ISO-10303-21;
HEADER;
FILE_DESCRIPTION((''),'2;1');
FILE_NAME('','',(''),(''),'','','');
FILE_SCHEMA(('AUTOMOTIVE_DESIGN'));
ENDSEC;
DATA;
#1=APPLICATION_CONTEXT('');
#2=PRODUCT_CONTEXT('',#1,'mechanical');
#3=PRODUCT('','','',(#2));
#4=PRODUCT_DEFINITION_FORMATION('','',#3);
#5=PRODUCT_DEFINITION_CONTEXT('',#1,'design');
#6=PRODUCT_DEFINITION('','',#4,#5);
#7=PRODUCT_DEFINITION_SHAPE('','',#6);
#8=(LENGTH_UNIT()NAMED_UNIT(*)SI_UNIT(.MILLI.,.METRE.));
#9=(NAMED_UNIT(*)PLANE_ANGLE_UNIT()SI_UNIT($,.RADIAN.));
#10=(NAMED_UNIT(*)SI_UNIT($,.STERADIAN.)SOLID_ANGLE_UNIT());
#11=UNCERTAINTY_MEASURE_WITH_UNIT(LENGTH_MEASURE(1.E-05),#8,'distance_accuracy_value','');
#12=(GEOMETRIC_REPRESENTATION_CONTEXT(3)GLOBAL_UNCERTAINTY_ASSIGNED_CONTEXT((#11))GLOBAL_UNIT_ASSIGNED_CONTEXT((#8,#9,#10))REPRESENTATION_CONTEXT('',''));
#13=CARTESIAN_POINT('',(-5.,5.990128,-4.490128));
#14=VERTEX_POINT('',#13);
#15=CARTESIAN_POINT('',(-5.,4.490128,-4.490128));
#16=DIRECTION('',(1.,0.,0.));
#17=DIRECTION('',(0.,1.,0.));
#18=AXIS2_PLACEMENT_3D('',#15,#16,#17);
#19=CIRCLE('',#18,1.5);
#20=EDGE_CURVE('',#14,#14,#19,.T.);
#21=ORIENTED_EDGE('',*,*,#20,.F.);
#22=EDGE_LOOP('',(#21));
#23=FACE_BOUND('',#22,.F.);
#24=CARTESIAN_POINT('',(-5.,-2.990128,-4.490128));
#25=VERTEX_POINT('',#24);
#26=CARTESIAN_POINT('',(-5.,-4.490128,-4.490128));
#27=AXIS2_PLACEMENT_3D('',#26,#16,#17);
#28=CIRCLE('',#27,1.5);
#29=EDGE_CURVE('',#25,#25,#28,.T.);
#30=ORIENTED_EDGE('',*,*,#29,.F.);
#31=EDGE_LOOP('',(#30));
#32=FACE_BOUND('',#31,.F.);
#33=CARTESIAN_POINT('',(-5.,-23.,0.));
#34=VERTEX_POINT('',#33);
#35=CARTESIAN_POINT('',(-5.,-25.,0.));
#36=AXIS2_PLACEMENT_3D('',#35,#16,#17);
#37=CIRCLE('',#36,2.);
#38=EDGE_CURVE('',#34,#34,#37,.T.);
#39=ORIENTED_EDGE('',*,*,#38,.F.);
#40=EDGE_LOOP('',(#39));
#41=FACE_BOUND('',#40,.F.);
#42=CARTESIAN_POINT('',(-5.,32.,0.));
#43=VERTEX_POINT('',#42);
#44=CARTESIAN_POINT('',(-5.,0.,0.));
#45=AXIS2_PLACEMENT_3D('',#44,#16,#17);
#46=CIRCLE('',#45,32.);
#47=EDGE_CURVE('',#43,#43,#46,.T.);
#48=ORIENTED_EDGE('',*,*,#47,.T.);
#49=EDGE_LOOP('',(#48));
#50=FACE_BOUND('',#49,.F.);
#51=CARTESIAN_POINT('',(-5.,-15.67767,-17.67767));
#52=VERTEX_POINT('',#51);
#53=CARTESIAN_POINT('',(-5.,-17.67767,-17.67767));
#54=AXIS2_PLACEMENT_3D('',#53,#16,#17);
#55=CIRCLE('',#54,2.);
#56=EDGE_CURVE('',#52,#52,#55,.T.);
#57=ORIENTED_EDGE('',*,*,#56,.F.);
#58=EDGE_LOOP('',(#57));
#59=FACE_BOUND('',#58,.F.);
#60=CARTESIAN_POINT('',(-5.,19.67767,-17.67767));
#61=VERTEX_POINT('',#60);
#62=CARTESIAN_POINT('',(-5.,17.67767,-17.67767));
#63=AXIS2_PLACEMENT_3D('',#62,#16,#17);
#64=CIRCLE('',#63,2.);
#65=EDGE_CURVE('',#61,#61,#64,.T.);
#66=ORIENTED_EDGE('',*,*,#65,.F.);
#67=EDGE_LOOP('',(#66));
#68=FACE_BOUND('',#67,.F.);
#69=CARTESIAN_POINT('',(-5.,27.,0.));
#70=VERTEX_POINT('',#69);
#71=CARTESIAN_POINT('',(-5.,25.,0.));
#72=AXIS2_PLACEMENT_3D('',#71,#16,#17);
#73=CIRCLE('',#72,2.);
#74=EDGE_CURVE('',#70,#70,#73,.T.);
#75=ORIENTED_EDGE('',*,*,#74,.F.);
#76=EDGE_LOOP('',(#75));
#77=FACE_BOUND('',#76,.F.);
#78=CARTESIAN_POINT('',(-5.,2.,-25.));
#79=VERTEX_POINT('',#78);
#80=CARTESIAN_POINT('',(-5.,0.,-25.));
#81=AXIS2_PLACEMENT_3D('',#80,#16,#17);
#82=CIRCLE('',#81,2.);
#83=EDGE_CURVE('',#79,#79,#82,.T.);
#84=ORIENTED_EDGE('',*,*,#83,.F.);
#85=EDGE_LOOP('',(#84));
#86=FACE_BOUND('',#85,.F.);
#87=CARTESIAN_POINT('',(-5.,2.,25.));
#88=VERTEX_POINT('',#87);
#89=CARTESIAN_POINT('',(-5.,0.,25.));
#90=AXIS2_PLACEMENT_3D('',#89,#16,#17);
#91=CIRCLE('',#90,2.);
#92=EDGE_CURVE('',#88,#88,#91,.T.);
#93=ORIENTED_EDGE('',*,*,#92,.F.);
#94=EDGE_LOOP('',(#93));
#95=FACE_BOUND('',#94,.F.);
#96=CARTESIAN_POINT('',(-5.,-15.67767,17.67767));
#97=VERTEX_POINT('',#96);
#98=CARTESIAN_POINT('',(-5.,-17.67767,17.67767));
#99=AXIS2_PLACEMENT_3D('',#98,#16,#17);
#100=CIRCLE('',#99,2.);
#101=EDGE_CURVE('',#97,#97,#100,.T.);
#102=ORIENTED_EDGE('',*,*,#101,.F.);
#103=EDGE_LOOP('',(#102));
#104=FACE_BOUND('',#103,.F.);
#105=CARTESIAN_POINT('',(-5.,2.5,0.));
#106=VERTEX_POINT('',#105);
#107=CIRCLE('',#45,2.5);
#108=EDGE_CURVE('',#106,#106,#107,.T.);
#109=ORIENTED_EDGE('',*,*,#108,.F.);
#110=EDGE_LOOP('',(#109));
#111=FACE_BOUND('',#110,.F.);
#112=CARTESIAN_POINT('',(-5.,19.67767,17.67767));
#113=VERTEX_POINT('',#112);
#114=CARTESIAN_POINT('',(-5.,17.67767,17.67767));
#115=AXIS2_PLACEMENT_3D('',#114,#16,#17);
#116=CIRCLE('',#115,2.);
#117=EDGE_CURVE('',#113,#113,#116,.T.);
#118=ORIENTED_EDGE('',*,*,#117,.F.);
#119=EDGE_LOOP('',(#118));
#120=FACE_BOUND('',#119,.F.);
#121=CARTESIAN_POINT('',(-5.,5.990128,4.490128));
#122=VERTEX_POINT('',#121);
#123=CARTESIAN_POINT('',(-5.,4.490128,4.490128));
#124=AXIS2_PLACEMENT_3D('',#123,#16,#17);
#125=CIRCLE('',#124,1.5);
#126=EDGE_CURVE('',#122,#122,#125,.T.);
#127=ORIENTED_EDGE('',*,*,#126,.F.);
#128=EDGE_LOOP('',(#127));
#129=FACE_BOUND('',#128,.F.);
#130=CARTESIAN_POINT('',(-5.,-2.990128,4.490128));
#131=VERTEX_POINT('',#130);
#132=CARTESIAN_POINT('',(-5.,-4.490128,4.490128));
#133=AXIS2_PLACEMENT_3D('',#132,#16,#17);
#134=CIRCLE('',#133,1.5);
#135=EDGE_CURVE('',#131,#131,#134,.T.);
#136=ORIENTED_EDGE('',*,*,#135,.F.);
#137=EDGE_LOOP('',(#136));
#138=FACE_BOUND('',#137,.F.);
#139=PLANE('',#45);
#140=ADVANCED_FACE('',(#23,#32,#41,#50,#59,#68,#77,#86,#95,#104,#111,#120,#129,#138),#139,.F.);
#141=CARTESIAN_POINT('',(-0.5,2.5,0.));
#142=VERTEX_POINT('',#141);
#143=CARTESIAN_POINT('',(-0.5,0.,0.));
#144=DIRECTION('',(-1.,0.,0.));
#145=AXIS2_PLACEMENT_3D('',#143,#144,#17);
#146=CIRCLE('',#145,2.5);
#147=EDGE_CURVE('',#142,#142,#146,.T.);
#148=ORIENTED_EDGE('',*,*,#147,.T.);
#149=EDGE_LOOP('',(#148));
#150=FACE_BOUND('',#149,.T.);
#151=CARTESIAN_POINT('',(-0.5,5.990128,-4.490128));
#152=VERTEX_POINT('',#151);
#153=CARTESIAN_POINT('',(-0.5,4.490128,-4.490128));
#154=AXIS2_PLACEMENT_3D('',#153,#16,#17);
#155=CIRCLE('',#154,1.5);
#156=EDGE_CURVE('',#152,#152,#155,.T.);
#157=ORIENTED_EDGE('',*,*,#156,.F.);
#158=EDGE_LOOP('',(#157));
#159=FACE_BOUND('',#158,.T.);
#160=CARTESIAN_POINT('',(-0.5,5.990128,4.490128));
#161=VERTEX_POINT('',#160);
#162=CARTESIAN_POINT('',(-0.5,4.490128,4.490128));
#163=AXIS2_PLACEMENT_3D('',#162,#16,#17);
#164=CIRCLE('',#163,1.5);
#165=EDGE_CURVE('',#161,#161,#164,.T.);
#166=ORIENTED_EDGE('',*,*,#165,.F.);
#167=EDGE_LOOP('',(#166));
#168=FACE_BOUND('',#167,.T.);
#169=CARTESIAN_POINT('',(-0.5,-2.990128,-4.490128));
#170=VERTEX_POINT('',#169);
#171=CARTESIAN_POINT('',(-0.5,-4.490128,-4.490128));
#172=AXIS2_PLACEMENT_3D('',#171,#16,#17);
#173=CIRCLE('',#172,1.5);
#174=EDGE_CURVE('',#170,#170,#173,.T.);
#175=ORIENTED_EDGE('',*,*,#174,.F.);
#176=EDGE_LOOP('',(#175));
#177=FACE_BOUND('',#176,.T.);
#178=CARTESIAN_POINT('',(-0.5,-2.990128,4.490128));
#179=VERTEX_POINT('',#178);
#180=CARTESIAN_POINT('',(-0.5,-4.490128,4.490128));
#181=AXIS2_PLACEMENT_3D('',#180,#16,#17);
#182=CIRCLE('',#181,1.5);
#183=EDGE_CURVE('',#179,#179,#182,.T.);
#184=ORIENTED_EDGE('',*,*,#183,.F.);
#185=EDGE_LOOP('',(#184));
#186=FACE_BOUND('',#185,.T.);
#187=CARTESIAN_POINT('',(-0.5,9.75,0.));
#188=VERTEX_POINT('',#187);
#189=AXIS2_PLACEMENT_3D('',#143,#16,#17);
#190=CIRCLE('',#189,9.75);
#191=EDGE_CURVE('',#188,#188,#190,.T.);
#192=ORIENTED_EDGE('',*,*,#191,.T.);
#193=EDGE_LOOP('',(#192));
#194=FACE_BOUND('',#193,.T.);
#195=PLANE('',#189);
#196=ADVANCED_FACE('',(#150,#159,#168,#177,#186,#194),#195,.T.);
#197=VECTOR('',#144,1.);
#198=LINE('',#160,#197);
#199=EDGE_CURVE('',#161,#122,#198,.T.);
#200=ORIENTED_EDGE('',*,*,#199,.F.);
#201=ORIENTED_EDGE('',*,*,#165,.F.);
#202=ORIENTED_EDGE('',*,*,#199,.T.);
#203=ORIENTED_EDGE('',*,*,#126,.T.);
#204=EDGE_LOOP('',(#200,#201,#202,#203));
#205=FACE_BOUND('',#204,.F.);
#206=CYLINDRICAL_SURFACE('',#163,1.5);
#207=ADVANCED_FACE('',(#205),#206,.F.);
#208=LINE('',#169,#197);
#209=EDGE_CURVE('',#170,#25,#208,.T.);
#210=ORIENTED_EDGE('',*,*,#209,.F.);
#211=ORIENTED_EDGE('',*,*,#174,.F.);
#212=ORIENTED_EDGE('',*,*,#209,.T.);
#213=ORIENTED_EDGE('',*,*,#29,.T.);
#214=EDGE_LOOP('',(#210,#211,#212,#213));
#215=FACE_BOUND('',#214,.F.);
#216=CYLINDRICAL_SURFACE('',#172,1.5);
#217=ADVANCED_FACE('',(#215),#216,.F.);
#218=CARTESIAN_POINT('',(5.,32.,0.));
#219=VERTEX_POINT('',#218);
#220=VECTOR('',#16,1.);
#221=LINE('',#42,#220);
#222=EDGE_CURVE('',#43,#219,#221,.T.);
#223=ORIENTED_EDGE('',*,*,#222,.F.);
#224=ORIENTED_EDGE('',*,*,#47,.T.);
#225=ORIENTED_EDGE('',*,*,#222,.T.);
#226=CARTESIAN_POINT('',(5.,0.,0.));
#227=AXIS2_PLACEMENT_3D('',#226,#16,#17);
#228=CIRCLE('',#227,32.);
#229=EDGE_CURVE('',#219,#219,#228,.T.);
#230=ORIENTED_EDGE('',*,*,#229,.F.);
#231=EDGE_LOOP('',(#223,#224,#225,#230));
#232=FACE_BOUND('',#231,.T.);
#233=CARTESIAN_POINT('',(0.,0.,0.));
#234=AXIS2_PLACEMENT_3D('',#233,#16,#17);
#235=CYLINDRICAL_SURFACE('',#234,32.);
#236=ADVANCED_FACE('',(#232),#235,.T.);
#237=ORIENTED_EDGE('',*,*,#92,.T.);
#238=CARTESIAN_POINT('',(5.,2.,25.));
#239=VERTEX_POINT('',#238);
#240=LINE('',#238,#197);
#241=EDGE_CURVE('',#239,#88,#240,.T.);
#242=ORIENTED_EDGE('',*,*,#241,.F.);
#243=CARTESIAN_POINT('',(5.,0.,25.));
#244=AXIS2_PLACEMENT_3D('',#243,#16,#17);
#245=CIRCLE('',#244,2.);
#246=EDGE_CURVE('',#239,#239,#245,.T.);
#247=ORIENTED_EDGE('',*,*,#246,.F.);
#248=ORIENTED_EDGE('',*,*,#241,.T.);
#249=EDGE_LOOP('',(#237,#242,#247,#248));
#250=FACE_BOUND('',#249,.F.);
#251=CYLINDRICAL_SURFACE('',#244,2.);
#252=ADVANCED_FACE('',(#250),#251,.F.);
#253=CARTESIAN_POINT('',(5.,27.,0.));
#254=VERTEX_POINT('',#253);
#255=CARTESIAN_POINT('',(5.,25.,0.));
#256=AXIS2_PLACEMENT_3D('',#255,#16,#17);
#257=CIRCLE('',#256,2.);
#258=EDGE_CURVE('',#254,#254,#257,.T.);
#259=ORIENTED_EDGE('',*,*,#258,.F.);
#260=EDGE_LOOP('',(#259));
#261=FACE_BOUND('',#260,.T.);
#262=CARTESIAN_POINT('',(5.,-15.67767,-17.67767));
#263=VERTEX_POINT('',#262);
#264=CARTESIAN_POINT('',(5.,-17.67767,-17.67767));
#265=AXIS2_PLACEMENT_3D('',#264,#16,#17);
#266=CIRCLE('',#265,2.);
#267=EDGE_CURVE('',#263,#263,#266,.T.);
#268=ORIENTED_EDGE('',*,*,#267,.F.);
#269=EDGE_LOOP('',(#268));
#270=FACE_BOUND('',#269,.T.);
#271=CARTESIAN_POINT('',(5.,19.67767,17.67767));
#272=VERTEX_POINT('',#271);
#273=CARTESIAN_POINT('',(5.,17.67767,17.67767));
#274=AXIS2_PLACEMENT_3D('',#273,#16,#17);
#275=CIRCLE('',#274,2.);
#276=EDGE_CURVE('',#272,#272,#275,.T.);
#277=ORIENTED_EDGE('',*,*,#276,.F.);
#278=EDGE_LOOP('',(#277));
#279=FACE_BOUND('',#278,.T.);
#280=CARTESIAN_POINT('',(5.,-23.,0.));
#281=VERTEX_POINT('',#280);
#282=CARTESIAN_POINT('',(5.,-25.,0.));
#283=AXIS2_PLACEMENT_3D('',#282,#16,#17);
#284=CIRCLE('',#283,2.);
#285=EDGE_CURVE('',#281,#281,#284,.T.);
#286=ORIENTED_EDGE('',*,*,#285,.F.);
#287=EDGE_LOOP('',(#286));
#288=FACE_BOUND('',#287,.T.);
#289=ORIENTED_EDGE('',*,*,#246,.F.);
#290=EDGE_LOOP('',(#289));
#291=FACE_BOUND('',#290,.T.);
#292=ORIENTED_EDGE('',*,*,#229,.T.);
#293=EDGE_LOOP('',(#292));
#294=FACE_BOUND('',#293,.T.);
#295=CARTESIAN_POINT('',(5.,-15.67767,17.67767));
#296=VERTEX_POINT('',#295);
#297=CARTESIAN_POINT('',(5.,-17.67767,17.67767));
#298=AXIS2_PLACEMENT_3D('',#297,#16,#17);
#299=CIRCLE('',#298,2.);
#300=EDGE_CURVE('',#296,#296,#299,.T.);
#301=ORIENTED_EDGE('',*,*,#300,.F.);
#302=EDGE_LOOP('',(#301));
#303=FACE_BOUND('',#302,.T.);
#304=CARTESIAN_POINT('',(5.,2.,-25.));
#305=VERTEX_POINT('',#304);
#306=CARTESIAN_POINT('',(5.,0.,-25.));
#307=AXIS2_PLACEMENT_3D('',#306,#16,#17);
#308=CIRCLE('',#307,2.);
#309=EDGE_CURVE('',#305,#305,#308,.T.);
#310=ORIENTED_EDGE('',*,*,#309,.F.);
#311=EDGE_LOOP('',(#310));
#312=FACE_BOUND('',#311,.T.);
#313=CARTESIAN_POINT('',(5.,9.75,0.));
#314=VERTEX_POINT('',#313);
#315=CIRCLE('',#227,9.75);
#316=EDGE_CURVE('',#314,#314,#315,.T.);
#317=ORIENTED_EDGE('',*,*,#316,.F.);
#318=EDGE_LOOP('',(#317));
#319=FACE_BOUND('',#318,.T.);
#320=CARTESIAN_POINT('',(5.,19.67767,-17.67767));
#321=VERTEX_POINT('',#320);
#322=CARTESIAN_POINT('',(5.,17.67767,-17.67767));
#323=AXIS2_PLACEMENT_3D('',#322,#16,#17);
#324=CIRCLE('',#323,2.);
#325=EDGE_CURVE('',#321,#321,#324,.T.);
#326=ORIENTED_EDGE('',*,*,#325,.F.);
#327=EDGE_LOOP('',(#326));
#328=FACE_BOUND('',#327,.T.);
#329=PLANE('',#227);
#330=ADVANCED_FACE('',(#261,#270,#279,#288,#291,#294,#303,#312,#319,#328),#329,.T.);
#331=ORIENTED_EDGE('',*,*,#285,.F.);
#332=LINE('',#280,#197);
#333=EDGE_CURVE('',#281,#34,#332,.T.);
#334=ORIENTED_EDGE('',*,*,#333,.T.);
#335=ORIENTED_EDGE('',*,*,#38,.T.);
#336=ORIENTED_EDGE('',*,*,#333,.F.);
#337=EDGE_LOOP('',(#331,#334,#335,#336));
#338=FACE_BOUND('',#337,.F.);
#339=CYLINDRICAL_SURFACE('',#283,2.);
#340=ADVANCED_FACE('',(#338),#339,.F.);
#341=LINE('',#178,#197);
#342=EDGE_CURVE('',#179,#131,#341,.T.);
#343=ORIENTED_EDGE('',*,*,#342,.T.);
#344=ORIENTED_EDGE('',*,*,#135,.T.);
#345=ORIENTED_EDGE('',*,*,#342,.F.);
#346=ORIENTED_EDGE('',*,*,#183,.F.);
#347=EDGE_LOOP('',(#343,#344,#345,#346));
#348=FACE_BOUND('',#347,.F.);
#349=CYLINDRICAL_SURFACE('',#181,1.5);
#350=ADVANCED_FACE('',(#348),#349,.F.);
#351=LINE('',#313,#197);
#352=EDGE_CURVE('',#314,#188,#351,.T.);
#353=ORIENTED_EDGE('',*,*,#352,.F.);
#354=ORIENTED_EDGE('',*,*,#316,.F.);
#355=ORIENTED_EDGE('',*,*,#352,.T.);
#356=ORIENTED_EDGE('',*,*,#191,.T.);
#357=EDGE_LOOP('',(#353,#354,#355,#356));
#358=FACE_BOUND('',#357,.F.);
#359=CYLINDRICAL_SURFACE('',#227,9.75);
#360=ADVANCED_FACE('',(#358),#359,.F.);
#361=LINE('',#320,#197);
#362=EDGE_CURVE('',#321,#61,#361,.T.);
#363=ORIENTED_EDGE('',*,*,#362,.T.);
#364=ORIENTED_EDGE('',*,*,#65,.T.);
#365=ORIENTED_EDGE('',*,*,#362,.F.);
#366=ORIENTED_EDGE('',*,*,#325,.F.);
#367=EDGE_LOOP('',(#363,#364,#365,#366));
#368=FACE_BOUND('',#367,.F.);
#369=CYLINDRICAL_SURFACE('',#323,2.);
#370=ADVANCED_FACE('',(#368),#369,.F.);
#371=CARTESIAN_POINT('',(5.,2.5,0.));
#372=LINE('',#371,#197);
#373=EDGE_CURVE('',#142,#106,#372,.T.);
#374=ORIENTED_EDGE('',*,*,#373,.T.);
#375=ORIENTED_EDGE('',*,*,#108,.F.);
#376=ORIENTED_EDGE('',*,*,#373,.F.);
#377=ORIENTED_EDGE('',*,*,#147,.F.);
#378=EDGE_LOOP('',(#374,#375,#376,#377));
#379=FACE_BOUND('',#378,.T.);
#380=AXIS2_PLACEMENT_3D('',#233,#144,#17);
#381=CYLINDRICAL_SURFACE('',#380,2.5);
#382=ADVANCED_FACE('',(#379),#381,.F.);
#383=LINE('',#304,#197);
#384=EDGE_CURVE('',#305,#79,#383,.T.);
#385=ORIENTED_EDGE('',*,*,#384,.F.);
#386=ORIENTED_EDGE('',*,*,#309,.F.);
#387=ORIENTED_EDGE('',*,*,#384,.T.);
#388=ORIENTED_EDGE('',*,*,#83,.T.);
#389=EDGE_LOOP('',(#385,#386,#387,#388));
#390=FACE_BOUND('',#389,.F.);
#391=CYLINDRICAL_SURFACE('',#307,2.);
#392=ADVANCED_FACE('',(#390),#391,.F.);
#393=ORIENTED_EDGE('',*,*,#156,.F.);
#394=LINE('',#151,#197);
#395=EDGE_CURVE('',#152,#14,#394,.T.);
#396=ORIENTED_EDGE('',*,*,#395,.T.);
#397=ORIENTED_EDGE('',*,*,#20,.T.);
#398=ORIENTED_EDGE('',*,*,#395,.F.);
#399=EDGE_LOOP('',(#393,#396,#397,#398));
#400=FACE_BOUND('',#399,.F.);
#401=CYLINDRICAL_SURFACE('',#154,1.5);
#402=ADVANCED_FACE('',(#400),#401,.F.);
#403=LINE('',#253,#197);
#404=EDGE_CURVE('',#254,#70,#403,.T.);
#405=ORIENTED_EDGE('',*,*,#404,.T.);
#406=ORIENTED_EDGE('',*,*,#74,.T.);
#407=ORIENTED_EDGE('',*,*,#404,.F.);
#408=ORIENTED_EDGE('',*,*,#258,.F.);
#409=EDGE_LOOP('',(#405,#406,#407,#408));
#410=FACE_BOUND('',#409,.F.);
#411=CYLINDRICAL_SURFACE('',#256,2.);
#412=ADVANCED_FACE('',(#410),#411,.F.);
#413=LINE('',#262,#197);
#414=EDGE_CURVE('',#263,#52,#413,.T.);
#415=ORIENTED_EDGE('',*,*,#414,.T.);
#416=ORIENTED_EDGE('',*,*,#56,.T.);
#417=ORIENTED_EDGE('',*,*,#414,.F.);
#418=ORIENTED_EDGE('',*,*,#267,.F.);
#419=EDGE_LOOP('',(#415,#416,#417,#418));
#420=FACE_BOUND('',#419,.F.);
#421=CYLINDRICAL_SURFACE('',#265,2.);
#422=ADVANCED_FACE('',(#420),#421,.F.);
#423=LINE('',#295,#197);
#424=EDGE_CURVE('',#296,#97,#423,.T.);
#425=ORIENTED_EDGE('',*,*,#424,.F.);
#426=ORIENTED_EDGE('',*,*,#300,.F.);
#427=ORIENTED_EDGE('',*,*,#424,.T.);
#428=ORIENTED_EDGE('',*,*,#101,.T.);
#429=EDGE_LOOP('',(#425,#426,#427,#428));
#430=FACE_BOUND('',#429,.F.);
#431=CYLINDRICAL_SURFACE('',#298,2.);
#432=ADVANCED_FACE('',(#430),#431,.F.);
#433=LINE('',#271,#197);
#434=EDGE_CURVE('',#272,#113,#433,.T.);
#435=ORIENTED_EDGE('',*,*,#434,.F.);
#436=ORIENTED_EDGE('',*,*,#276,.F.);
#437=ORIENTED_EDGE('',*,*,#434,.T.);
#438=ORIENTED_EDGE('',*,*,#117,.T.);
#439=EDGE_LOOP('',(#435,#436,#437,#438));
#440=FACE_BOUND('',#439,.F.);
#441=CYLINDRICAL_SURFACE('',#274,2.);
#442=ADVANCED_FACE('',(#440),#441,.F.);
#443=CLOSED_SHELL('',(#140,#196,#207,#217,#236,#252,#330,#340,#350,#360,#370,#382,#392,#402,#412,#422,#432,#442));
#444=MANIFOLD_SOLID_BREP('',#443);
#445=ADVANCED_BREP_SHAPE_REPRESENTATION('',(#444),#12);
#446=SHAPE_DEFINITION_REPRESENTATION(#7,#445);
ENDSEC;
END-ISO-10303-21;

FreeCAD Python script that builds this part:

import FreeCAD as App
import Part
import Sketcher

V = App.Vector

doc = App.newDocument("Part")
body = doc.addObject("PartDesign::Body", "Body")

# Sketch on YZ plane
sketch1 = doc.addObject("Sketcher::SketchObject", "Sketch")
body.addObject(sketch1)
sketch1.AttachmentSupport = (doc.YZ_Plane, [""])
sketch1.MapMode = "FlatFace"
sketch1.addGeometry([
    Part.Circle(V(0, 0, 0), V(0, 0, 1), 32),
    Part.Circle(V(0, 0, 0), V(0, 0, 1), 2.5),
], False)
sketch1.addConstraint([
    Sketcher.Constraint("Coincident", 0, 3, -1, 1),
    Sketcher.Constraint("Coincident", 1, 3, -1, 1),
    Sketcher.Constraint("Diameter", 0, 64.0),
    Sketcher.Constraint("Diameter", 1, 5.0),
])
pad1 = doc.addObject("PartDesign::Pad", "Pad")
body.addObject(pad1)
pad1.Profile = sketch1
pad1.Length = 10
pad1.Midplane = True

# Sketch on YZ plane
sketch2 = doc.addObject("Sketcher::SketchObject", "Sketch001")
body.addObject(sketch2)
sketch2.AttachmentSupport = (doc.YZ_Plane, [""])
sketch2.MapMode = "FlatFace"
sketch2.AttachmentOffset = App.Placement(V(0, 0, 5), App.Rotation())
sketch2.addGeometry(Part.Circle(V(0, 0, 0), V(0, 0, 1), 10), False)
sketch2.addConstraint([
    Sketcher.Constraint("Coincident", 0, 3, -1, 1),
    Sketcher.Constraint("Diameter", 0, 19.5),
])
pocket1 = doc.addObject("PartDesign::Pocket", "Pocket")
body.addObject(pocket1)
pocket1.Profile = sketch2
pocket1.Length = 5.5

# Sketch on YZ plane
sketch3 = doc.addObject("Sketcher::SketchObject", "Sketch002")
body.addObject(sketch3)
sketch3.AttachmentSupport = (doc.YZ_Plane, [""])
sketch3.MapMode = "FlatFace"
sketch3.AttachmentOffset = App.Placement(V(0, 0, -0.5), App.Rotation())
sketch3.addGeometry([
    Part.Circle(V(-4.5, 4.5, 0), V(0, 0, 1), 1.5),
    Part.Circle(V(-4.5, -4.5, 0), V(0, 0, 1), 1.5),
    Part.Circle(V(4.5, -4.5, 0), V(0, 0, 1), 1.5),
    Part.Circle(V(4.5, 4.5, 0), V(0, 0, 1), 1.5),
], False)
sketch3.addConstraint([
    Sketcher.Constraint("Equal", 0, 1),
    Sketcher.Constraint("Equal", 1, 2),
    Sketcher.Constraint("Equal", 2, 3),
    Sketcher.Constraint("Symmetric", 0, 3, 2, 3, -1, 1),
    Sketcher.Constraint("Symmetric", 1, 3, 3, 3, -1, 1),
    Sketcher.Constraint("Symmetric", 1, 3, 2, 3, -2),
    Sketcher.Constraint("Diameter", 0, 3.0),
    Sketcher.Constraint("DistanceX", 0, 3, -1, 1, 4.490128),
    Sketcher.Constraint("DistanceY", -1, 1, 0, 3, 4.490128),
])
pocket2 = doc.addObject("PartDesign::Pocket", "Pocket001")
body.addObject(pocket2)
pocket2.Profile = sketch3
pocket2.Type = "ThroughAll"

# Sketch on YZ plane
sketch4 = doc.addObject("Sketcher::SketchObject", "Sketch003")
body.addObject(sketch4)
sketch4.AttachmentSupport = (doc.YZ_Plane, [""])
sketch4.MapMode = "FlatFace"
sketch4.AttachmentOffset = App.Placement(V(0, 0, 5), App.Rotation())
sketch4.addGeometry([
    Part.Circle(V(0, 25, 0), V(0, 0, 1), 2),  # 0
    Part.Circle(V(-17.7, 17.7, 0), V(0, 0, 1), 2),  # 1
    Part.Circle(V(-25, 0, 0), V(0, 0, 1), 2),  # 2
    Part.Circle(V(-17.7, -17.7, 0), V(0, 0, 1), 2),  # 3
    Part.Circle(V(0, -25, 0), V(0, 0, 1), 2),  # 4
    Part.Circle(V(17.7, -17.7, 0), V(0, 0, 1), 2),  # 5
    Part.Circle(V(25, 0, 0), V(0, 0, 1), 2),  # 6
    Part.Circle(V(17.7, 17.7, 0), V(0, 0, 1), 2),  # 7
], False)
sketch4.addConstraint([
    Sketcher.Constraint("Equal", 0, 1),
    Sketcher.Constraint("Equal", 1, 2),
    Sketcher.Constraint("Equal", 2, 3),
    Sketcher.Constraint("Equal", 3, 4),
    Sketcher.Constraint("Equal", 4, 5),
    Sketcher.Constraint("Equal", 5, 6),
    Sketcher.Constraint("Equal", 6, 7),
    Sketcher.Constraint("Symmetric", 0, 3, 4, 3, -1, 1),
    Sketcher.Constraint("Symmetric", 1, 3, 5, 3, -1, 1),
    Sketcher.Constraint("Symmetric", 2, 3, 6, 3, -1, 1),
    Sketcher.Constraint("Symmetric", 3, 3, 7, 3, -1, 1),
    Sketcher.Constraint("Symmetric", 3, 3, 5, 3, -2),
    Sketcher.Constraint("PointOnObject", 0, 3, -2),
    Sketcher.Constraint("PointOnObject", 2, 3, -1),
    Sketcher.Constraint("Diameter", 0, 4.0),
    Sketcher.Constraint("DistanceY", -1, 1, 0, 3, 25.0),
    Sketcher.Constraint("DistanceX", 2, 3, -1, 1, 25.0),
    Sketcher.Constraint("DistanceX", 1, 3, -1, 1, 17.67767),
    Sketcher.Constraint("DistanceY", -1, 1, 1, 3, 17.67767),
])
pocket3 = doc.addObject("PartDesign::Pocket", "Pocket002")
body.addObject(pocket3)
pocket3.Profile = sketch4
pocket3.Type = "ThroughAll"

doc.recompute()
